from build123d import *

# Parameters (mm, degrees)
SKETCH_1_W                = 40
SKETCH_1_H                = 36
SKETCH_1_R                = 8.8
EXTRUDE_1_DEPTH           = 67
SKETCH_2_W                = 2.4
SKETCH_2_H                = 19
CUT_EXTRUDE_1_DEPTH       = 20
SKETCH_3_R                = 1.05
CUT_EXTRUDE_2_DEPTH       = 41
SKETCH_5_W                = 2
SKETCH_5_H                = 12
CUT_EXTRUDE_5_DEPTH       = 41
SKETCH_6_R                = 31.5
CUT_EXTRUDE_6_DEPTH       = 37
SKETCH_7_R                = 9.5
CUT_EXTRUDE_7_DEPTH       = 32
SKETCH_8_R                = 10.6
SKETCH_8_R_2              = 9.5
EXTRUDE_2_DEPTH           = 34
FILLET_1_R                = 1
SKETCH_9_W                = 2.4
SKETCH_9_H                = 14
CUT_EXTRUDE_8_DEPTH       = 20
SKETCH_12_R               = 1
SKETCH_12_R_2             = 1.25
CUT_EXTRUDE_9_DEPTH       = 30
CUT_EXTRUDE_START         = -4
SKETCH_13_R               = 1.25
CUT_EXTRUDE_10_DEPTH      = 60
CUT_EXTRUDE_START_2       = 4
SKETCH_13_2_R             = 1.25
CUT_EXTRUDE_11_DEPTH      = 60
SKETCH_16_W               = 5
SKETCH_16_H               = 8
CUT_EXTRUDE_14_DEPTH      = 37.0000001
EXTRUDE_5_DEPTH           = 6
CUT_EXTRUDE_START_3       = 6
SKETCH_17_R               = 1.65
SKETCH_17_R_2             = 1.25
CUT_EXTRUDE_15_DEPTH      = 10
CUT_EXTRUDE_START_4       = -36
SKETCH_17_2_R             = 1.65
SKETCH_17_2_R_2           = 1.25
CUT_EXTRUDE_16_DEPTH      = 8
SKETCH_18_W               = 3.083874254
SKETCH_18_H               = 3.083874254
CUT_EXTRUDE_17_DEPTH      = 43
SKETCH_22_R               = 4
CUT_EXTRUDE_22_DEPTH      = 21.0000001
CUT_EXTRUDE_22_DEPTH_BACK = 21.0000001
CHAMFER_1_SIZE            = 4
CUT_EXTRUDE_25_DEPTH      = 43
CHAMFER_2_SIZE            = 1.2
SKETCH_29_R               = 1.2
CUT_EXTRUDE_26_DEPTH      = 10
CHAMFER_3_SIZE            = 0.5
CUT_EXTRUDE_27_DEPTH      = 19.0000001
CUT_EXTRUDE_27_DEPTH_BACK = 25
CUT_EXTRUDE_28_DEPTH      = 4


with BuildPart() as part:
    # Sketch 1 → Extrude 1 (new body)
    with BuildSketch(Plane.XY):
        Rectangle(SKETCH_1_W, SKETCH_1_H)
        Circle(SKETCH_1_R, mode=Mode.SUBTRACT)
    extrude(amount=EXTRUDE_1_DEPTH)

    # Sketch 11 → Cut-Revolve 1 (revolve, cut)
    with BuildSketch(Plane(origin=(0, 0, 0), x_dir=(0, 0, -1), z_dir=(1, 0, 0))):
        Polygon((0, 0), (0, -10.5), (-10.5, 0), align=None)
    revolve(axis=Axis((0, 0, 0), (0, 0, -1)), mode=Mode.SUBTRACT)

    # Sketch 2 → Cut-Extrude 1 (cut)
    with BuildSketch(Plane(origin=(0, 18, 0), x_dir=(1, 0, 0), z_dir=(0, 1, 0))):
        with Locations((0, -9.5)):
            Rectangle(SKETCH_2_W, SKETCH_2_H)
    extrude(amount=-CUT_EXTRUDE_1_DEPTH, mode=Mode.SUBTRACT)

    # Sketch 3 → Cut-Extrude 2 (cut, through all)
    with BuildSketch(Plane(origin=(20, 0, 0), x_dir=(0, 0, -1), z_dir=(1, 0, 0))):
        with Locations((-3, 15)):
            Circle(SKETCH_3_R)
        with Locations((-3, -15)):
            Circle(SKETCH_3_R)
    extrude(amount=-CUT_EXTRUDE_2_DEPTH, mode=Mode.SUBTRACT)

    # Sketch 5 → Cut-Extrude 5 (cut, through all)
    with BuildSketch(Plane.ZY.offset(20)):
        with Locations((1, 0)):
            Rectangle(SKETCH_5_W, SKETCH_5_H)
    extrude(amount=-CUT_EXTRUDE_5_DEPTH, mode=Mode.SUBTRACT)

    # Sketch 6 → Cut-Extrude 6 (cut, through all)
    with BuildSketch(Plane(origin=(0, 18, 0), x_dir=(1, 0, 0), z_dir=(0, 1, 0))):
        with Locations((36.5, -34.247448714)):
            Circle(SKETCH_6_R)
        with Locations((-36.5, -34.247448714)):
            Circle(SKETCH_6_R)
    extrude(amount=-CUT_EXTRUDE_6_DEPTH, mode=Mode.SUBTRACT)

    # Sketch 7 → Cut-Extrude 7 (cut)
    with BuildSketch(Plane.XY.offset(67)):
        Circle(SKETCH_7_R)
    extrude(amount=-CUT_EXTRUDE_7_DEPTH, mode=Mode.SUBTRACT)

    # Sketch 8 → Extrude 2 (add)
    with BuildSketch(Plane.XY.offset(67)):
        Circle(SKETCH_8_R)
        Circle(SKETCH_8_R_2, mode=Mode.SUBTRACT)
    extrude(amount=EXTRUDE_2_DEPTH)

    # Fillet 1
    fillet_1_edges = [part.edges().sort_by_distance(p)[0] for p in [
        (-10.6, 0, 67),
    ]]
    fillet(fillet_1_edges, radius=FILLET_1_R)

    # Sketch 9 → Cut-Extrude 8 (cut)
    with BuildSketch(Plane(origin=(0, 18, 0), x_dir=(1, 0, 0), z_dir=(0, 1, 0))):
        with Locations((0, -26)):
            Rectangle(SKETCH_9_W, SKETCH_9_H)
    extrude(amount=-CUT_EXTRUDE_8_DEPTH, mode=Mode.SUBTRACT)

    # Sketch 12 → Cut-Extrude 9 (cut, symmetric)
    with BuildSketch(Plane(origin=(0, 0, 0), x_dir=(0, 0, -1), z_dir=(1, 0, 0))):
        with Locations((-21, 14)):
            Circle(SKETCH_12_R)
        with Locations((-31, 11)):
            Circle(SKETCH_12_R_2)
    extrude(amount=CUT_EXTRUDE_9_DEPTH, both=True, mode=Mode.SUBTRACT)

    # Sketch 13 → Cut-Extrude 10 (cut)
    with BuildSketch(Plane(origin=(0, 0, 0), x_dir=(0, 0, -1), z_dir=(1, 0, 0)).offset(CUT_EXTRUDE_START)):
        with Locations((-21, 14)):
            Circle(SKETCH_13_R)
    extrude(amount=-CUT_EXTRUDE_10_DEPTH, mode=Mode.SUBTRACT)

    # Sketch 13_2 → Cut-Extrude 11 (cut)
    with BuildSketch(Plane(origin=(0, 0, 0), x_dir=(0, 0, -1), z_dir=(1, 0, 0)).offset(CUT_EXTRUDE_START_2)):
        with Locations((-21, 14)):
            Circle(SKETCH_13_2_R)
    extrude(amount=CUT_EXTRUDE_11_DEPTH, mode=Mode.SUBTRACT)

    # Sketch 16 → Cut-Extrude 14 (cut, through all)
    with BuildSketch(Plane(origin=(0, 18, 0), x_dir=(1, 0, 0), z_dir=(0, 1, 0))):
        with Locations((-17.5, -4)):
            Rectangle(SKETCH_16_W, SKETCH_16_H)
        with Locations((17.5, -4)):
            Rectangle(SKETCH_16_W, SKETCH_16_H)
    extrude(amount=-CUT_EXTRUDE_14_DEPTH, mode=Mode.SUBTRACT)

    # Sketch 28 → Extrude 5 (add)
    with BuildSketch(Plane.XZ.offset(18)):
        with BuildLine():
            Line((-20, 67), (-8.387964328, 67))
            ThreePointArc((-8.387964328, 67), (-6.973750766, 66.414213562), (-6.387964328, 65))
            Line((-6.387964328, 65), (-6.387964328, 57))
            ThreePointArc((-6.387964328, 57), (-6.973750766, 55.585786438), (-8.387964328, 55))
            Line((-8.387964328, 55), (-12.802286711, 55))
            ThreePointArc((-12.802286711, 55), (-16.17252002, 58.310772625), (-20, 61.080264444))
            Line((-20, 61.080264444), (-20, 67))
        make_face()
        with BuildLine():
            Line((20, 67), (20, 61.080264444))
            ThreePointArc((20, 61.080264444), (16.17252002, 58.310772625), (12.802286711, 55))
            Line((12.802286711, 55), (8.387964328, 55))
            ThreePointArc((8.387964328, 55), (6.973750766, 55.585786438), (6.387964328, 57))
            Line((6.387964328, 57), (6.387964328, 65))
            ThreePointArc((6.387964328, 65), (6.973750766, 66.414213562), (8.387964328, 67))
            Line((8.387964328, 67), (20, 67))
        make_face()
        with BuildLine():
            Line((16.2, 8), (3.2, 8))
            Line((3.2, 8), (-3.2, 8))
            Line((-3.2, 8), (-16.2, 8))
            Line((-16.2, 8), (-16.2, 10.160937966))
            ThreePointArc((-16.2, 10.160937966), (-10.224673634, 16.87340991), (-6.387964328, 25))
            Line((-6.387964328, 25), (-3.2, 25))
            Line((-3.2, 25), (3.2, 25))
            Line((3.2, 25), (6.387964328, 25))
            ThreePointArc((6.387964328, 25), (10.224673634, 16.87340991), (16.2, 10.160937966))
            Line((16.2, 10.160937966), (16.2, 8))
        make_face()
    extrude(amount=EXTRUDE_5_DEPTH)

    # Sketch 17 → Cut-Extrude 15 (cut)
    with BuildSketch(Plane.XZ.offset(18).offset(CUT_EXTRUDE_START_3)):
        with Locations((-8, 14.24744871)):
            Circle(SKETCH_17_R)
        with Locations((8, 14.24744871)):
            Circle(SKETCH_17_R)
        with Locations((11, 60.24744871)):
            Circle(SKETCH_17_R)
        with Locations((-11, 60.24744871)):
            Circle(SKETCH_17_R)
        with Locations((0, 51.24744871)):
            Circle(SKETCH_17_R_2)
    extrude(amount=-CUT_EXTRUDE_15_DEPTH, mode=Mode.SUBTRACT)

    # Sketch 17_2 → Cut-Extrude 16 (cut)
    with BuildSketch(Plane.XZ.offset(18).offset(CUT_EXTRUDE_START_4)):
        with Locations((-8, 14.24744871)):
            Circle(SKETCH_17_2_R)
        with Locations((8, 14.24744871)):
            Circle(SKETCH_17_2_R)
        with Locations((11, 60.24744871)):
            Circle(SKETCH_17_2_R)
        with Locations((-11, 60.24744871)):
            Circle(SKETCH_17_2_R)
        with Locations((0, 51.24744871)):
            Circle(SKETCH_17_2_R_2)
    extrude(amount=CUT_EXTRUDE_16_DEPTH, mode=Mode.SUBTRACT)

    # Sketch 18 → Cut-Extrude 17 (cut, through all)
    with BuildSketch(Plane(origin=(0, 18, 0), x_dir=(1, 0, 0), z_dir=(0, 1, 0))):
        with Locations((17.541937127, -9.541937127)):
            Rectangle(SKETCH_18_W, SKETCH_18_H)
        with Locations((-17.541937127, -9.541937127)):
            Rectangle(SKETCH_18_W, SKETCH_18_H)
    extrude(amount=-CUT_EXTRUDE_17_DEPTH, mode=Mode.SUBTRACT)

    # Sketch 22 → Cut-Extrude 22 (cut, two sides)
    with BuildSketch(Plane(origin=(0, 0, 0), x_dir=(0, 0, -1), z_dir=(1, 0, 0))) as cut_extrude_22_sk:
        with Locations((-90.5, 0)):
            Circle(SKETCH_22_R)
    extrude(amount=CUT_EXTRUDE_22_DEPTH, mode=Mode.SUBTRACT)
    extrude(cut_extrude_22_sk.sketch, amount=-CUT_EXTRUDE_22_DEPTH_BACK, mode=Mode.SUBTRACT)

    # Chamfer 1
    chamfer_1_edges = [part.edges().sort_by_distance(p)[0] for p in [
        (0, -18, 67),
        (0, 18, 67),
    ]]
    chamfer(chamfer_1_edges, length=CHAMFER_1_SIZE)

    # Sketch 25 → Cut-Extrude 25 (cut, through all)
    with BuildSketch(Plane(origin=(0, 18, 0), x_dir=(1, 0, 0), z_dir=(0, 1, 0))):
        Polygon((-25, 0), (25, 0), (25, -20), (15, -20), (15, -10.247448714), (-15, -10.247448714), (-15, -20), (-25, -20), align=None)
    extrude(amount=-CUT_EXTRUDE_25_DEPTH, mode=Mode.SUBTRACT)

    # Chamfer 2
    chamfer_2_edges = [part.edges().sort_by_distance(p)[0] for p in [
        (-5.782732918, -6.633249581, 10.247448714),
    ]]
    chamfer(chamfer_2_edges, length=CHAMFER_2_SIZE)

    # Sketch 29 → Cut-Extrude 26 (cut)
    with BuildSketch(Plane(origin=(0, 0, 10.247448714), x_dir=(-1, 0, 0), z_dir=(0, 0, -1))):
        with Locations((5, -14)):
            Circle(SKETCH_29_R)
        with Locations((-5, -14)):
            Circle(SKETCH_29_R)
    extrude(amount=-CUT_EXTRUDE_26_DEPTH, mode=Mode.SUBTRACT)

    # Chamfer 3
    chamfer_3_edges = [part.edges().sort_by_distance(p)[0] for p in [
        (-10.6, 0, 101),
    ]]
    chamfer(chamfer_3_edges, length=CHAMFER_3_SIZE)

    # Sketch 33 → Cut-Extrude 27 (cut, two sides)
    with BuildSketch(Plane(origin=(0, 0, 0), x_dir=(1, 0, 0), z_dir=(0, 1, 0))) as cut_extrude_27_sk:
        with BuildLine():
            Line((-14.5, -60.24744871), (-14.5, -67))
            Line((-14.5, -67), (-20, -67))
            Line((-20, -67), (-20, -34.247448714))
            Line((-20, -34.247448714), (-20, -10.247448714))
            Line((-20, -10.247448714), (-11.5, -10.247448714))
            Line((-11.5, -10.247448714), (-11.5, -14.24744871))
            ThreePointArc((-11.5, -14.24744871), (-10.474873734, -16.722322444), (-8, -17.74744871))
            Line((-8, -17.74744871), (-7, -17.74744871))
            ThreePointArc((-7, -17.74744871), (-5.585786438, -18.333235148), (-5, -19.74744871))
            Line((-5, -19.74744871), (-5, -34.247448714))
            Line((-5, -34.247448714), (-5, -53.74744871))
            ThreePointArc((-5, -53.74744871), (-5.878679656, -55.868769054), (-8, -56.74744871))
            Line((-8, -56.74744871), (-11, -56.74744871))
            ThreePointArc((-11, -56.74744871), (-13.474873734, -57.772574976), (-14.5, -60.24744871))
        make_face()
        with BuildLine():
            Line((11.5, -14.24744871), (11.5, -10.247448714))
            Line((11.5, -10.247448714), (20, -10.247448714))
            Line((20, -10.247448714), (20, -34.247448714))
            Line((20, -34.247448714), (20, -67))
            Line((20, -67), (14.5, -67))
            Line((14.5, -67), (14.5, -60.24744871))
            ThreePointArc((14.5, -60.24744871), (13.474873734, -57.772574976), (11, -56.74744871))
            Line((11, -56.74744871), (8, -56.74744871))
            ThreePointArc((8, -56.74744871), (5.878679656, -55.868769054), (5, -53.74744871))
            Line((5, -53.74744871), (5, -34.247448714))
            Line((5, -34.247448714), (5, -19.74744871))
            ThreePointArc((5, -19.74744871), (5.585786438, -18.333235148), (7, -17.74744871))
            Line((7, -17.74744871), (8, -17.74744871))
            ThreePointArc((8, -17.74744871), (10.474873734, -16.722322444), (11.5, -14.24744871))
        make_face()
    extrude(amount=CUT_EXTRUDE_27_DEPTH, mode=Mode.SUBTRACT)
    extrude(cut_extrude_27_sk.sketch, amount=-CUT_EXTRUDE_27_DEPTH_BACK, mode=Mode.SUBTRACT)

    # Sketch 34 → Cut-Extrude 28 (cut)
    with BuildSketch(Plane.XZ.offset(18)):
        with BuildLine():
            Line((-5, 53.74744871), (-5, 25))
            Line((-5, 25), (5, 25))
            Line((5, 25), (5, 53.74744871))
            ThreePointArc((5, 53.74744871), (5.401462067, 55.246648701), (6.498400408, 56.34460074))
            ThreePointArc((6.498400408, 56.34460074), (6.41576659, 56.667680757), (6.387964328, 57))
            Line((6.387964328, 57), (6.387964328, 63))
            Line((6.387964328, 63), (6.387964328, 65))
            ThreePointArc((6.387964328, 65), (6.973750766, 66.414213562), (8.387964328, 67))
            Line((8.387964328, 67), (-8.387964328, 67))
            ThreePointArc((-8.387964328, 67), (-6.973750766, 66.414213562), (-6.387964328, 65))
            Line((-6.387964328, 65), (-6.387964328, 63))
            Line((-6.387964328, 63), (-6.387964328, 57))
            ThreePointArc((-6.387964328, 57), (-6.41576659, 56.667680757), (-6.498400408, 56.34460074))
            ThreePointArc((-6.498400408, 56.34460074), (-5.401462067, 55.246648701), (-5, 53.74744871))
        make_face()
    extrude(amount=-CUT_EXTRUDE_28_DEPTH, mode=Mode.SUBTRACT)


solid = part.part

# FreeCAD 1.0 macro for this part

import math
import FreeCAD as App
import Part
import Sketcher

V = App.Vector


def edges_at(feature, points):
    """Names of the edges that pass closest to the given points."""
    edges = feature.Shape.Edges
    near = lambda p: min(range(len(edges)), key=lambda i: edges[i].distToShape(Part.Vertex(*p))[0])
    return sorted({f"Edge{near(p) + 1}" for p in points})

doc = App.newDocument("Part")
body = doc.addObject("PartDesign::Body", "Body")

# Sketch on XY plane
sketch1 = body.newObject("Sketcher::SketchObject", "Sketch")
sketch1.AttachmentSupport = (doc.getObject("XY_Plane"), [""])
sketch1.MapMode = "FlatFace"
sketch1.addGeometry([
    Part.LineSegment(V(-20, 18, 0), V(-20, -18, 0)),  # 0
    Part.LineSegment(V(-20, -18, 0), V(20, -18, 0)),  # 1
    Part.LineSegment(V(20, -18, 0), V(20, 18, 0)),  # 2
    Part.LineSegment(V(20, 18, 0), V(-20, 18, 0)),  # 3
    Part.Circle(V(0, 0, 0), V(0, 0, 1), 9),  # 4
], False)
sketch1.addConstraint([
    Sketcher.Constraint("Coincident", 0, 2, 1, 1),
    Sketcher.Constraint("Coincident", 1, 2, 2, 1),
    Sketcher.Constraint("Coincident", 2, 2, 3, 1),
    Sketcher.Constraint("Coincident", 3, 2, 0, 1),
    Sketcher.Constraint("Vertical", 0),
    Sketcher.Constraint("Horizontal", 1),
    Sketcher.Constraint("Vertical", 2),
    Sketcher.Constraint("Horizontal", 3),
    Sketcher.Constraint("Coincident", 4, 3, -1, 1),
    Sketcher.Constraint("Symmetric", 0, 2, 2, 2, -1, 1),
    Sketcher.Constraint("Diameter", 4, 17.6),
    Sketcher.Constraint("DistanceX", 1, 1, 1, 2, 40.0),
    Sketcher.Constraint("DistanceY", 0, 2, 0, 1, 36.0),
])
pad1 = body.newObject("PartDesign::Pad", "Pad")
pad1.Profile = sketch1
pad1.Length = 67

# Sketch on YZ plane
sketch2 = body.newObject("Sketcher::SketchObject", "Sketch001")
sketch2.AttachmentSupport = (doc.getObject("YZ_Plane"), [""])
sketch2.MapMode = "FlatFace"
sketch2.addGeometry([
    Part.LineSegment(V(-10, 0, 0), V(0, 0, 0)),
    Part.LineSegment(V(0, 0, 0), V(0, 10, 0)),
    Part.LineSegment(V(0, 10, 0), V(-10, 0, 0)),
], False)
sketch2.addConstraint([
    Sketcher.Constraint("Coincident", 0, 2, 1, 1),
    Sketcher.Constraint("Coincident", 1, 2, 2, 1),
    Sketcher.Constraint("Coincident", 2, 2, 0, 1),
    Sketcher.Constraint("Horizontal", 0),
    Sketcher.Constraint("Vertical", 1),
    Sketcher.Constraint("Coincident", 0, 2, -1, 1),
    Sketcher.Constraint("Equal", 0, 1),
    Sketcher.Constraint("DistanceX", 0, 1, 0, 2, 10.5),
])
groove = body.newObject("PartDesign::Groove", "Groove")
groove.Profile = sketch2
groove.ReferenceAxis = (sketch2, ["V_Axis"])
groove.Angle = 360

# Sketch on XZ plane
sketch3 = body.newObject("Sketcher::SketchObject", "Sketch002")
sketch3.AttachmentSupport = (doc.getObject("XZ_Plane"), [""])
sketch3.MapMode = "FlatFace"
sketch3.AttachmentOffset = App.Placement(V(0, 0, -18), App.Rotation())
sketch3.addGeometry([
    Part.LineSegment(V(-1.2, 0, 0), V(-1.2, 19, 0)),
    Part.LineSegment(V(-1.2, 19, 0), V(1.2, 19, 0)),
    Part.LineSegment(V(1.2, 19, 0), V(1.2, 0, 0)),
    Part.LineSegment(V(1.2, 0, 0), V(-1.2, 0, 0)),
], False)
sketch3.addConstraint([
    Sketcher.Constraint("Coincident", 0, 2, 1, 1),
    Sketcher.Constraint("Coincident", 1, 2, 2, 1),
    Sketcher.Constraint("Coincident", 2, 2, 3, 1),
    Sketcher.Constraint("Coincident", 3, 2, 0, 1),
    Sketcher.Constraint("Vertical", 0),
    Sketcher.Constraint("Horizontal", 1),
    Sketcher.Constraint("Vertical", 2),
    Sketcher.Constraint("Horizontal", 3),
    Sketcher.Constraint("Symmetric", 2, 2, 3, 2, -1, 1),
    Sketcher.Constraint("DistanceY", 0, 1, 0, 2, 19.0),
    Sketcher.Constraint("DistanceX", 1, 1, 1, 2, 2.4),
])
pocket1 = body.newObject("PartDesign::Pocket", "Pocket")
pocket1.Profile = sketch3
pocket1.Length = 20
pocket1.Reversed = True

# Sketch on YZ plane
sketch4 = body.newObject("Sketcher::SketchObject", "Sketch003")
sketch4.AttachmentSupport = (doc.getObject("YZ_Plane"), [""])
sketch4.MapMode = "FlatFace"
sketch4.AttachmentOffset = App.Placement(V(0, 0, 20), App.Rotation())
sketch4.addGeometry([
    Part.Circle(V(15, 3, 0), V(0, 0, 1), 1.1),
    Part.Circle(V(-15, 3, 0), V(0, 0, 1), 1.1),
], False)
sketch4.addConstraint([
    Sketcher.Constraint("Equal", 0, 1),
    Sketcher.Constraint("Symmetric", 0, 3, 1, 3, -2),
    Sketcher.Constraint("Diameter", 0, 2.1),
    Sketcher.Constraint("DistanceX", -1, 1, 0, 3, 15.0),
    Sketcher.Constraint("DistanceY", -1, 1, 0, 3, 3.0),
])
pocket2 = body.newObject("PartDesign::Pocket", "Pocket001")
pocket2.Profile = sketch4
pocket2.Type = "ThroughAll"

# Sketch on YZ plane
sketch5 = body.newObject("Sketcher::SketchObject", "Sketch004")
sketch5.AttachmentSupport = (doc.getObject("YZ_Plane"), [""])
sketch5.MapMode = "FlatFace"
sketch5.AttachmentOffset = App.Placement(V(0, 0, -20), App.Rotation())
sketch5.addGeometry([
    Part.LineSegment(V(6, 0, 0), V(-6, 0, 0)),
    Part.LineSegment(V(-6, 0, 0), V(-6, 2, 0)),
    Part.LineSegment(V(-6, 2, 0), V(6, 2, 0)),
    Part.LineSegment(V(6, 2, 0), V(6, 0, 0)),
], False)
sketch5.addConstraint([
    Sketcher.Constraint("Coincident", 0, 2, 1, 1),
    Sketcher.Constraint("Coincident", 1, 2, 2, 1),
    Sketcher.Constraint("Coincident", 2, 2, 3, 1),
    Sketcher.Constraint("Coincident", 3, 2, 0, 1),
    Sketcher.Constraint("Horizontal", 0),
    Sketcher.Constraint("Vertical", 1),
    Sketcher.Constraint("Horizontal", 2),
    Sketcher.Constraint("Vertical", 3),
    Sketcher.Constraint("Symmetric", 0, 2, 3, 2, -1, 1),
    Sketcher.Constraint("DistanceX", 0, 2, 0, 1, 12.0),
    Sketcher.Constraint("DistanceY", 1, 1, 1, 2, 2.0),
])
pocket3 = body.newObject("PartDesign::Pocket", "Pocket002")
pocket3.Profile = sketch5
pocket3.Type = "ThroughAll"
pocket3.Reversed = True

# Sketch on XZ plane
sketch6 = body.newObject("Sketcher::SketchObject", "Sketch005")
sketch6.AttachmentSupport = (doc.getObject("XZ_Plane"), [""])
sketch6.MapMode = "FlatFace"
sketch6.AttachmentOffset = App.Placement(V(0, 0, -18), App.Rotation())
sketch6.addGeometry([
    Part.Circle(V(36, 34, 0), V(0, 0, 1), 32),
    Part.Circle(V(-36, 34, 0), V(0, 0, 1), 32),
], False)
sketch6.addConstraint([
    Sketcher.Constraint("Equal", 0, 1),
    Sketcher.Constraint("Symmetric", 0, 3, 1, 3, -2),
    Sketcher.Constraint("Diameter", 0, 63.0),
    Sketcher.Constraint("DistanceX", 1, 3, 0, 3, 73.0),
    Sketcher.Constraint("DistanceY", -1, 1, 0, 3, 34.247449),
])
pocket4 = body.newObject("PartDesign::Pocket", "Pocket003")
pocket4.Profile = sketch6
pocket4.Type = "ThroughAll"
pocket4.Reversed = True

# Sketch on XY plane
sketch7 = body.newObject("Sketcher::SketchObject", "Sketch006")
sketch7.AttachmentSupport = (doc.getObject("XY_Plane"), [""])
sketch7.MapMode = "FlatFace"
sketch7.AttachmentOffset = App.Placement(V(0, 0, 67), App.Rotation())
sketch7.addGeometry(Part.Circle(V(0, 0, 0), V(0, 0, 1), 10), False)
sketch7.addConstraint([
    Sketcher.Constraint("Coincident", 0, 3, -1, 1),
    Sketcher.Constraint("Diameter", 0, 19.0),
])
pocket5 = body.newObject("PartDesign::Pocket", "Pocket004")
pocket5.Profile = sketch7
pocket5.Length = 32

# Sketch on XY plane
sketch8 = body.newObject("Sketcher::SketchObject", "Sketch007")
sketch8.AttachmentSupport = (doc.getObject("XY_Plane"), [""])
sketch8.MapMode = "FlatFace"
sketch8.AttachmentOffset = App.Placement(V(0, 0, 67), App.Rotation())
sketch8.addGeometry([
    Part.Circle(V(0, 0, 0), V(0, 0, 1), 11),
    Part.Circle(V(0, 0, 0), V(0, 0, 1), 10),
], False)
sketch8.addConstraint([
    Sketcher.Constraint("Coincident", 0, 3, -1, 1),
    Sketcher.Constraint("Coincident", 1, 3, -1, 1),
    Sketcher.Constraint("Diameter", 1, 19.0),
    Sketcher.Constraint("Diameter", 0, 21.2),
])
pad2 = body.newObject("PartDesign::Pad", "Pad001")
pad2.Profile = sketch8
pad2.Length = 34
doc.recompute()

fillet = body.newObject("PartDesign::Fillet", "Fillet")
fillet.Base = (pad2, edges_at(pad2, [(-10.6, 0, 67)]))
fillet.Radius = 1

# Sketch on XZ plane
sketch9 = body.newObject("Sketcher::SketchObject", "Sketch008")
sketch9.AttachmentSupport = (doc.getObject("XZ_Plane"), [""])
sketch9.MapMode = "FlatFace"
sketch9.AttachmentOffset = App.Placement(V(0, 0, -18), App.Rotation())
sketch9.addGeometry([
    Part.LineSegment(V(-1.2, 19, 0), V(-1.2, 33, 0)),
    Part.LineSegment(V(-1.2, 33, 0), V(1.2, 33, 0)),
    Part.LineSegment(V(1.2, 33, 0), V(1.2, 19, 0)),
    Part.LineSegment(V(1.2, 19, 0), V(-1.2, 19, 0)),
], False)
sketch9.addConstraint([
    Sketcher.Constraint("Coincident", 0, 2, 1, 1),
    Sketcher.Constraint("Coincident", 1, 2, 2, 1),
    Sketcher.Constraint("Coincident", 2, 2, 3, 1),
    Sketcher.Constraint("Coincident", 3, 2, 0, 1),
    Sketcher.Constraint("Vertical", 0),
    Sketcher.Constraint("Horizontal", 1),
    Sketcher.Constraint("Vertical", 2),
    Sketcher.Constraint("Horizontal", 3),
    Sketcher.Constraint("DistanceY", 0, 1, 0, 2, 14.0),
    Sketcher.Constraint("DistanceX", 1, 1, 1, 2, 2.4),
    Sketcher.Constraint("DistanceY", -1, 1, 0, 2, 33.0),
    Sketcher.Constraint("DistanceX", 0, 2, -1, 1, 1.2),
])
pocket6 = body.newObject("PartDesign::Pocket", "Pocket005")
pocket6.Profile = sketch9
pocket6.Length = 20
pocket6.Reversed = True

# Sketch on YZ plane
sketch10 = body.newObject("Sketcher::SketchObject", "Sketch009")
sketch10.AttachmentSupport = (doc.getObject("YZ_Plane"), [""])
sketch10.MapMode = "FlatFace"
sketch10.addGeometry([
    Part.Circle(V(14, 21, 0), V(0, 0, 1), 1),
    Part.Circle(V(11, 31, 0), V(0, 0, 1), 1.2),
], False)
sketch10.addConstraint([
    Sketcher.Constraint("Diameter", 0, 2.0),
    Sketcher.Constraint("Diameter", 1, 2.5),
    Sketcher.Constraint("DistanceX", -1, 1, 0, 3, 14.0),
    Sketcher.Constraint("DistanceY", -1, 1, 0, 3, 21.0),
    Sketcher.Constraint("DistanceX", -1, 1, 1, 3, 11.0),
    Sketcher.Constraint("DistanceY", -1, 1, 1, 3, 31.0),
])
pocket7 = body.newObject("PartDesign::Pocket", "Pocket006")
pocket7.Profile = sketch10
pocket7.Length = 60
pocket7.Midplane = True

# Sketch on YZ plane
sketch11 = body.newObject("Sketcher::SketchObject", "Sketch010")
sketch11.AttachmentSupport = (doc.getObject("YZ_Plane"), [""])
sketch11.MapMode = "FlatFace"
sketch11.AttachmentOffset = App.Placement(V(0, 0, -4), App.Rotation())
sketch11.addGeometry(Part.Circle(V(14, 21, 0), V(0, 0, 1), 1.2), False)
sketch11.addConstraint([
    Sketcher.Constraint("Diameter", 0, 2.5),
    Sketcher.Constraint("DistanceX", -1, 1, 0, 3, 14.0),
    Sketcher.Constraint("DistanceY", -1, 1, 0, 3, 21.0),
])
pocket8 = body.newObject("PartDesign::Pocket", "Pocket007")
pocket8.Profile = sketch11
pocket8.Length = 60

# Sketch on YZ plane
sketch12 = body.newObject("Sketcher::SketchObject", "Sketch011")
sketch12.AttachmentSupport = (doc.getObject("YZ_Plane"), [""])
sketch12.MapMode = "FlatFace"
sketch12.AttachmentOffset = App.Placement(V(0, 0, 4), App.Rotation())
sketch12.addGeometry(Part.Circle(V(14, 21, 0), V(0, 0, 1), 1.2), False)
sketch12.addConstraint([
    Sketcher.Constraint("Diameter", 0, 2.5),
    Sketcher.Constraint("DistanceX", -1, 1, 0, 3, 14.0),
    Sketcher.Constraint("DistanceY", -1, 1, 0, 3, 21.0),
])
pocket9 = body.newObject("PartDesign::Pocket", "Pocket008")
pocket9.Profile = sketch12
pocket9.Length = 60
pocket9.Reversed = True

# Sketch on XZ plane
sketch13 = body.newObject("Sketcher::SketchObject", "Sketch012")
sketch13.AttachmentSupport = (doc.getObject("XZ_Plane"), [""])
sketch13.MapMode = "FlatFace"
sketch13.AttachmentOffset = App.Placement(V(0, 0, -18), App.Rotation())
sketch13.addGeometry([
    Part.LineSegment(V(-20, 0, 0), V(-20, 8, 0)),  # 0
    Part.LineSegment(V(-20, 8, 0), V(-15, 8, 0)),  # 1
    Part.LineSegment(V(-15, 8, 0), V(-15, 0, 0)),  # 2
    Part.LineSegment(V(-15, 0, 0), V(-20, 0, 0)),  # 3
    Part.LineSegment(V(15, 0, 0), V(15, 8, 0)),  # 4
    Part.LineSegment(V(15, 8, 0), V(20, 8, 0)),  # 5
    Part.LineSegment(V(20, 8, 0), V(20, 0, 0)),  # 6
    Part.LineSegment(V(20, 0, 0), V(15, 0, 0)),  # 7
], False)
sketch13.addConstraint([
    Sketcher.Constraint("Coincident", 0, 2, 1, 1),
    Sketcher.Constraint("Coincident", 1, 2, 2, 1),
    Sketcher.Constraint("Coincident", 2, 2, 3, 1),
    Sketcher.Constraint("Coincident", 3, 2, 0, 1),
    Sketcher.Constraint("Coincident", 4, 2, 5, 1),
    Sketcher.Constraint("Coincident", 5, 2, 6, 1),
    Sketcher.Constraint("Coincident", 6, 2, 7, 1),
    Sketcher.Constraint("Coincident", 7, 2, 4, 1),
    Sketcher.Constraint("Vertical", 0),
    Sketcher.Constraint("Horizontal", 1),
    Sketcher.Constraint("Vertical", 2),
    Sketcher.Constraint("Horizontal", 3),
    Sketcher.Constraint("Vertical", 4),
    Sketcher.Constraint("Horizontal", 5),
    Sketcher.Constraint("Vertical", 6),
    Sketcher.Constraint("Horizontal", 7),
    Sketcher.Constraint("Symmetric", 3, 2, 6, 2, -1, 1),
    Sketcher.Constraint("Symmetric", 1, 2, 4, 2, -2),
    Sketcher.Constraint("PointOnObject", 2, 2, -1),
    Sketcher.Constraint("DistanceX", 1, 1, 1, 2, 5.0),
    Sketcher.Constraint("DistanceY", 0, 1, 0, 2, 8.0),
    Sketcher.Constraint("DistanceX", 0, 2, -1, 1, 20.0),
])
pocket10 = body.newObject("PartDesign::Pocket", "Pocket009")
pocket10.Profile = sketch13
pocket10.Type = "ThroughAll"
pocket10.Reversed = True

# Sketch on XZ plane
sketch14 = body.newObject("Sketcher::SketchObject", "Sketch013")
sketch14.AttachmentSupport = (doc.getObject("XZ_Plane"), [""])
sketch14.MapMode = "FlatFace"
sketch14.AttachmentOffset = App.Placement(V(0, 0, 18), App.Rotation())
sketch14.addGeometry([
    Part.LineSegment(V(-8.4, 67, 0), V(-20, 67, 0)),  # 0
    Part.LineSegment(V(-20, 67, 0), V(-20, 61.1, 0)),  # 1
    Part.ArcOfCircle(Part.Circle(V(-36.5, 34.2, 0), V(0, 0, 1), 31.5), math.radians(41.21), math.radians(58.41)),  # 2
    Part.LineSegment(V(-12.8, 55, 0), V(-8.4, 55, 0)),  # 3
    Part.ArcOfCircle(Part.Circle(V(-8.4, 57, 0), V(0, 0, 1), 2), math.radians(-90), math.radians(0)),  # 4
    Part.LineSegment(V(-6.4, 57, 0), V(-6.4, 65, 0)),  # 5
    Part.ArcOfCircle(Part.Circle(V(-8.4, 65, 0), V(0, 0, 1), 2), math.radians(0), math.radians(90)),  # 6
    Part.LineSegment(V(20, 61.1, 0), V(20, 67, 0)),  # 7
    Part.LineSegment(V(20, 67, 0), V(8.4, 67, 0)),  # 8
    Part.ArcOfCircle(Part.Circle(V(8.4, 65, 0), V(0, 0, 1), 2), math.radians(90), math.radians(180)),  # 9
    Part.LineSegment(V(6.4, 65, 0), V(6.4, 57, 0)),  # 10
    Part.ArcOfCircle(Part.Circle(V(8.4, 57, 0), V(0, 0, 1), 2), math.radians(-180), math.radians(-90)),  # 11
    Part.LineSegment(V(8.4, 55, 0), V(12.8, 55, 0)),  # 12
    Part.ArcOfCircle(Part.Circle(V(36.5, 34.2, 0), V(0, 0, 1), 31.5), math.radians(121.59), math.radians(138.79)),  # 13
    Part.LineSegment(V(-16.2, 8, 0), V(16.2, 8, 0)),  # 14
    Part.LineSegment(V(16.2, 8, 0), V(16.2, 10.2, 0)),  # 15
    Part.ArcOfCircle(Part.Circle(V(36.5, 34.2, 0), V(0, 0, 1), 31.5), math.radians(-163), math.radians(-130)),  # 16
    Part.LineSegment(V(6.4, 25, 0), V(-6.4, 25, 0)),  # 17
    Part.ArcOfCircle(Part.Circle(V(-36.5, 34.2, 0), V(0, 0, 1), 31.5), math.radians(-50), math.radians(-17)),  # 18
    Part.LineSegment(V(-16.2, 10.2, 0), V(-16.2, 8, 0)),  # 19
], False)
sketch14.addConstraint([
    Sketcher.Constraint("Coincident", 0, 2, 1, 1),
    Sketcher.Constraint("Coincident", 1, 2, 2, 2),
    Sketcher.Constraint("Coincident", 2, 1, 3, 1),
    Sketcher.Constraint("Tangent", 3, 2, 4, 1),
    Sketcher.Constraint("Tangent", 4, 2, 5, 1),
    Sketcher.Constraint("Tangent", 5, 2, 6, 1),
    Sketcher.Constraint("Tangent", 6, 2, 0, 1),
    Sketcher.Constraint("Coincident", 7, 2, 8, 1),
    Sketcher.Constraint("Tangent", 8, 2, 9, 1),
    Sketcher.Constraint("Tangent", 9, 2, 10, 1),
    Sketcher.Constraint("Tangent", 10, 2, 11, 1),
    Sketcher.Constraint("Tangent", 11, 2, 12, 1),
    Sketcher.Constraint("Coincident", 12, 2, 13, 2),
    Sketcher.Constraint("Coincident", 13, 1, 7, 1),
    Sketcher.Constraint("Coincident", 14, 2, 15, 1),
    Sketcher.Constraint("Coincident", 15, 2, 16, 2),
    Sketcher.Constraint("Coincident", 16, 1, 17, 1),
    Sketcher.Constraint("Coincident", 17, 2, 18, 2),
    Sketcher.Constraint("Coincident", 18, 1, 19, 1),
    Sketcher.Constraint("Coincident", 19, 2, 14, 1),
    Sketcher.Constraint("Horizontal", 0),
    Sketcher.Constraint("Vertical", 1),
    Sketcher.Constraint("Horizontal", 3),
    Sketcher.Constraint("Vertical", 5),
    Sketcher.Constraint("Vertical", 7),
    Sketcher.Constraint("Horizontal", 8),
    Sketcher.Constraint("Vertical", 10),
    Sketcher.Constraint("Horizontal", 12),
    Sketcher.Constraint("Horizontal", 14),
    Sketcher.Constraint("Vertical", 15),
    Sketcher.Constraint("Horizontal", 17),
    Sketcher.Constraint("Vertical", 19),
    Sketcher.Constraint("Coincident", 16, 3, 13, 3),
    Sketcher.Constraint("Coincident", 18, 3, 2, 3),
    Sketcher.Constraint("Equal", 4, 6),
    Sketcher.Constraint("Equal", 6, 9),
    Sketcher.Constraint("Equal", 9, 11),
    Sketcher.Constraint("Equal", 2, 13),
    Sketcher.Constraint("Equal", 13, 16),
    Sketcher.Constraint("Equal", 16, 18),
    Sketcher.Constraint("Symmetric", 6, 3, 9, 3, -2),
    Sketcher.Constraint("Symmetric", 2, 3, 13, 3, -2),
    Sketcher.Constraint("Horizontal", 4, 3, 11, 3),
    Sketcher.Constraint("Horizontal", 1, 2, 13, 1),
    Sketcher.Constraint("Horizontal", 15, 2, 18, 1),
    Sketcher.Constraint("Vertical", 10, 2, 16, 1),
    Sketcher.Constraint("Radius", 4, 2.0),
    Sketcher.Constraint("Radius", 2, 31.5),
    Sketcher.Constraint("DistanceY", 5, 1, 5, 2, 8.0),
    Sketcher.Constraint("DistanceX", 14, 1, 14, 2, 32.4),
    Sketcher.Constraint("DistanceY", -1, 1, 4, 3, 57.0),
    Sketcher.Constraint("DistanceX", 0, 2, -1, 1, 20.0),
    Sketcher.Constraint("DistanceY", -1, 1, 14, 2, 8.0),
    Sketcher.Constraint("DistanceY", -1, 1, 16, 1, 25.0),
    Sketcher.Constraint("DistanceX", 2, 3, 13, 3, 73.0),
    Sketcher.Constraint("DistanceX", 17, 2, 17, 1, 12.775929),
])
pad3 = body.newObject("PartDesign::Pad", "Pad002")
pad3.Profile = sketch14
pad3.Length = 6

# Sketch on XZ plane
sketch15 = body.newObject("Sketcher::SketchObject", "Sketch014")
sketch15.AttachmentSupport = (doc.getObject("XZ_Plane"), [""])
sketch15.MapMode = "FlatFace"
sketch15.AttachmentOffset = App.Placement(V(0, 0, 24), App.Rotation())
sketch15.addGeometry([
    Part.Circle(V(-8, 14.2, 0), V(0, 0, 1), 1.6),  # 0
    Part.Circle(V(8, 14.2, 0), V(0, 0, 1), 1.6),  # 1
    Part.Circle(V(11, 60.2, 0), V(0, 0, 1), 1.6),  # 2
    Part.Circle(V(-11, 60.2, 0), V(0, 0, 1), 1.6),  # 3
    Part.Circle(V(0, 51.2, 0), V(0, 0, 1), 1.2),  # 4
], False)
sketch15.addConstraint([
    Sketcher.Constraint("Equal", 0, 1),
    Sketcher.Constraint("Equal", 1, 2),
    Sketcher.Constraint("Equal", 2, 3),
    Sketcher.Constraint("Symmetric", 0, 3, 1, 3, -2),
    Sketcher.Constraint("Symmetric", 2, 3, 3, 3, -2),
    Sketcher.Constraint("PointOnObject", 4, 3, -2),
    Sketcher.Constraint("Diameter", 0, 3.3),
    Sketcher.Constraint("Diameter", 4, 2.5),
    Sketcher.Constraint("DistanceX", 0, 3, -1, 1, 8.0),
    Sketcher.Constraint("DistanceX", -1, 1, 2, 3, 11.0),
    Sketcher.Constraint("DistanceY", 1, 3, 2, 3, 46.0),
    Sketcher.Constraint("DistanceY", 4, 3, 2, 3, 9.0),
    Sketcher.Constraint("DistanceY", -1, 1, 0, 3, 14.247449),
])
pocket11 = body.newObject("PartDesign::Pocket", "Pocket010")
pocket11.Profile = sketch15
pocket11.Length = 10

# Sketch on XZ plane
sketch16 = body.newObject("Sketcher::SketchObject", "Sketch015")
sketch16.AttachmentSupport = (doc.getObject("XZ_Plane"), [""])
sketch16.MapMode = "FlatFace"
sketch16.AttachmentOffset = App.Placement(V(0, 0, -18), App.Rotation())
sketch16.addGeometry([
    Part.Circle(V(-8, 14.2, 0), V(0, 0, 1), 1.6),  # 0
    Part.Circle(V(8, 14.2, 0), V(0, 0, 1), 1.6),  # 1
    Part.Circle(V(11, 60.2, 0), V(0, 0, 1), 1.6),  # 2
    Part.Circle(V(-11, 60.2, 0), V(0, 0, 1), 1.6),  # 3
    Part.Circle(V(0, 51.2, 0), V(0, 0, 1), 1.2),  # 4
], False)
sketch16.addConstraint([
    Sketcher.Constraint("Equal", 0, 1),
    Sketcher.Constraint("Equal", 1, 2),
    Sketcher.Constraint("Equal", 2, 3),
    Sketcher.Constraint("Symmetric", 0, 3, 1, 3, -2),
    Sketcher.Constraint("Symmetric", 2, 3, 3, 3, -2),
    Sketcher.Constraint("PointOnObject", 4, 3, -2),
    Sketcher.Constraint("Diameter", 0, 3.3),
    Sketcher.Constraint("Diameter", 4, 2.5),
    Sketcher.Constraint("DistanceX", 0, 3, -1, 1, 8.0),
    Sketcher.Constraint("DistanceX", -1, 1, 2, 3, 11.0),
    Sketcher.Constraint("DistanceY", 1, 3, 2, 3, 46.0),
    Sketcher.Constraint("DistanceY", 4, 3, 2, 3, 9.0),
    Sketcher.Constraint("DistanceY", -1, 1, 0, 3, 14.247449),
])
pocket12 = body.newObject("PartDesign::Pocket", "Pocket011")
pocket12.Profile = sketch16
pocket12.Length = 8
pocket12.Reversed = True

# Sketch on XZ plane
sketch17 = body.newObject("Sketcher::SketchObject", "Sketch016")
sketch17.AttachmentSupport = (doc.getObject("XZ_Plane"), [""])
sketch17.MapMode = "FlatFace"
sketch17.AttachmentOffset = App.Placement(V(0, 0, -18), App.Rotation())
sketch17.addGeometry([
    Part.LineSegment(V(16, 8, 0), V(16, 11.1, 0)),  # 0
    Part.LineSegment(V(16, 11.1, 0), V(19.1, 11.1, 0)),  # 1
    Part.LineSegment(V(19.1, 11.1, 0), V(19.1, 8, 0)),  # 2
    Part.LineSegment(V(19.1, 8, 0), V(16, 8, 0)),  # 3
    Part.LineSegment(V(-19.1, 8, 0), V(-19.1, 11.1, 0)),  # 4
    Part.LineSegment(V(-19.1, 11.1, 0), V(-16, 11.1, 0)),  # 5
    Part.LineSegment(V(-16, 11.1, 0), V(-16, 8, 0)),  # 6
    Part.LineSegment(V(-16, 8, 0), V(-19.1, 8, 0)),  # 7
], False)
sketch17.addConstraint([
    Sketcher.Constraint("Coincident", 0, 2, 1, 1),
    Sketcher.Constraint("Coincident", 1, 2, 2, 1),
    Sketcher.Constraint("Coincident", 2, 2, 3, 1),
    Sketcher.Constraint("Coincident", 3, 2, 0, 1),
    Sketcher.Constraint("Coincident", 4, 2, 5, 1),
    Sketcher.Constraint("Coincident", 5, 2, 6, 1),
    Sketcher.Constraint("Coincident", 6, 2, 7, 1),
    Sketcher.Constraint("Coincident", 7, 2, 4, 1),
    Sketcher.Constraint("Vertical", 0),
    Sketcher.Constraint("Horizontal", 1),
    Sketcher.Constraint("Vertical", 2),
    Sketcher.Constraint("Horizontal", 3),
    Sketcher.Constraint("Vertical", 4),
    Sketcher.Constraint("Horizontal", 5),
    Sketcher.Constraint("Vertical", 6),
    Sketcher.Constraint("Horizontal", 7),
    Sketcher.Constraint("Symmetric", 1, 2, 4, 2, -2),
    Sketcher.Constraint("Symmetric", 3, 2, 6, 2, -2),
    Sketcher.Constraint("Equal", 7, 0),
    Sketcher.Constraint("DistanceX", -1, 1, 0, 2, 16.0),
    Sketcher.Constraint("DistanceY", -1, 1, 2, 2, 8.0),
    Sketcher.Constraint("DistanceX", 1, 1, 1, 2, 3.083874),
])
pocket13 = body.newObject("PartDesign::Pocket", "Pocket012")
pocket13.Profile = sketch17
pocket13.Type = "ThroughAll"
pocket13.Reversed = True

# Sketch on YZ plane
sketch18 = body.newObject("Sketcher::SketchObject", "Sketch017")
sketch18.AttachmentSupport = (doc.getObject("YZ_Plane"), [""])
sketch18.MapMode = "FlatFace"
sketch18.addGeometry(Part.Circle(V(0, 90.5, 0), V(0, 0, 1), 4), False)
sketch18.addConstraint([
    Sketcher.Constraint("PointOnObject", 0, 3, -2),
    Sketcher.Constraint("Diameter", 0, 8.0),
    Sketcher.Constraint("DistanceY", -1, 1, 0, 3, 90.5),
])
pocket14 = body.newObject("PartDesign::Pocket", "Pocket013")
pocket14.Profile = sketch18
pocket14.Type = "ThroughAll"
pocket14.Midplane = True
doc.recompute()

chamfer = body.newObject("PartDesign::Chamfer", "Chamfer")
chamfer.Base = (pocket14, edges_at(pocket14, [(0, -18, 67), (0, 18, 67)]))
chamfer.Size = 4

# Sketch on XZ plane
sketch19 = body.newObject("Sketcher::SketchObject", "Sketch018")
sketch19.AttachmentSupport = (doc.getObject("XZ_Plane"), [""])
sketch19.MapMode = "FlatFace"
sketch19.AttachmentOffset = App.Placement(V(0, 0, -18), App.Rotation())
sketch19.addGeometry([
    Part.LineSegment(V(25, 0, 0), V(-25, 0, 0)),  # 0
    Part.LineSegment(V(-25, 0, 0), V(-25, 20, 0)),  # 1
    Part.LineSegment(V(-25, 20, 0), V(-15, 20, 0)),  # 2
    Part.LineSegment(V(-15, 20, 0), V(-15, 10, 0)),  # 3
    Part.LineSegment(V(-15, 10, 0), V(15, 10, 0)),  # 4
    Part.LineSegment(V(15, 10, 0), V(15, 20, 0)),  # 5
    Part.LineSegment(V(15, 20, 0), V(25, 20, 0)),  # 6
    Part.LineSegment(V(25, 20, 0), V(25, 0, 0)),  # 7
], False)
sketch19.addConstraint([
    Sketcher.Constraint("Coincident", 0, 2, 1, 1),
    Sketcher.Constraint("Coincident", 1, 2, 2, 1),
    Sketcher.Constraint("Coincident", 2, 2, 3, 1),
    Sketcher.Constraint("Coincident", 3, 2, 4, 1),
    Sketcher.Constraint("Coincident", 4, 2, 5, 1),
    Sketcher.Constraint("Coincident", 5, 2, 6, 1),
    Sketcher.Constraint("Coincident", 6, 2, 7, 1),
    Sketcher.Constraint("Coincident", 7, 2, 0, 1),
    Sketcher.Constraint("Horizontal", 0),
    Sketcher.Constraint("Vertical", 1),
    Sketcher.Constraint("Horizontal", 2),
    Sketcher.Constraint("Vertical", 3),
    Sketcher.Constraint("Horizontal", 4),
    Sketcher.Constraint("Vertical", 5),
    Sketcher.Constraint("Horizontal", 6),
    Sketcher.Constraint("Vertical", 7),
    Sketcher.Constraint("Symmetric", 0, 2, 7, 2, -1, 1),
    Sketcher.Constraint("Symmetric", 2, 2, 5, 2, -2),
    Sketcher.Constraint("DistanceX", 0, 2, 0, 1, 50.0),
    Sketcher.Constraint("DistanceX", 2, 1, 2, 2, 10.0),
    Sketcher.Constraint("DistanceY", 1, 1, 1, 2, 20.0),
    Sketcher.Constraint("DistanceY", 3, 2, 3, 1, 9.752551),
])
pocket15 = body.newObject("PartDesign::Pocket", "Pocket014")
pocket15.Profile = sketch19
pocket15.Type = "ThroughAll"
pocket15.Reversed = True
doc.recompute()

chamfer2 = body.newObject("PartDesign::Chamfer", "Chamfer001")
chamfer2.Base = (pocket15, edges_at(pocket15, [(-5.783, -6.633, 10.247)]))
chamfer2.Size = 1.2

# Sketch on XY plane
sketch20 = body.newObject("Sketcher::SketchObject", "Sketch019")
sketch20.AttachmentSupport = (doc.getObject("XY_Plane"), [""])
sketch20.MapMode = "FlatFace"
sketch20.AttachmentOffset = App.Placement(V(0, 0, 10.247449), App.Rotation())
sketch20.addGeometry([
    Part.Circle(V(-5, -14, 0), V(0, 0, 1), 1.2),
    Part.Circle(V(5, -14, 0), V(0, 0, 1), 1.2),
], False)
sketch20.addConstraint([
    Sketcher.Constraint("Equal", 0, 1),
    Sketcher.Constraint("Symmetric", 0, 3, 1, 3, -2),
    Sketcher.Constraint("Diameter", 0, 2.4),
    Sketcher.Constraint("DistanceX", 0, 3, -1, 1, 5.0),
    Sketcher.Constraint("DistanceY", 0, 3, -1, 1, 14.0),
])
pocket16 = body.newObject("PartDesign::Pocket", "Pocket015")
pocket16.Profile = sketch20
pocket16.Length = 10
pocket16.Reversed = True
doc.recompute()

chamfer3 = body.newObject("PartDesign::Chamfer", "Chamfer002")
chamfer3.Base = (pocket16, edges_at(pocket16, [(-10.6, 0, 101)]))
chamfer3.Size = 0.5

# Sketch on XZ plane
sketch21 = body.newObject("Sketcher::SketchObject", "Sketch020")
sketch21.AttachmentSupport = (doc.getObject("XZ_Plane"), [""])
sketch21.MapMode = "FlatFace"
sketch21.addGeometry([
    Part.LineSegment(V(-14.5, 67, 0), V(-14.5, 60.2, 0)),  # 0
    Part.ArcOfCircle(Part.Circle(V(-11, 60.2, 0), V(0, 0, 1), 3.5), math.radians(-180), math.radians(-90)),  # 1
    Part.LineSegment(V(-11, 56.7, 0), V(-8, 56.7, 0)),  # 2
    Part.ArcOfCircle(Part.Circle(V(-8, 53.7, 0), V(0, 0, 1), 3), math.radians(0), math.radians(90)),  # 3
    Part.LineSegment(V(-5, 53.7, 0), V(-5, 19.7, 0)),  # 4
    Part.ArcOfCircle(Part.Circle(V(-7, 19.7, 0), V(0, 0, 1), 2), math.radians(-90), math.radians(0)),  # 5
    Part.LineSegment(V(-7, 17.7, 0), V(-8, 17.7, 0)),  # 6
    Part.ArcOfCircle(Part.Circle(V(-8, 14.2, 0), V(0, 0, 1), 3.5), math.radians(90), math.radians(180)),  # 7
    Part.LineSegment(V(-11.5, 14.2, 0), V(-11.5, 10.2, 0)),  # 8
    Part.LineSegment(V(-11.5, 10.2, 0), V(-20, 10.2, 0)),  # 9
    Part.LineSegment(V(-20, 10.2, 0), V(-20, 67, 0)),  # 10
    Part.LineSegment(V(-20, 67, 0), V(-14.5, 67, 0)),  # 11
    Part.LineSegment(V(11.5, 10.2, 0), V(11.5, 14.2, 0)),  # 12
    Part.ArcOfCircle(Part.Circle(V(8, 14.2, 0), V(0, 0, 1), 3.5), math.radians(0), math.radians(90)),  # 13
    Part.LineSegment(V(8, 17.7, 0), V(7, 17.7, 0)),  # 14
    Part.ArcOfCircle(Part.Circle(V(7, 19.7, 0), V(0, 0, 1), 2), math.radians(-180), math.radians(-90)),  # 15
    Part.LineSegment(V(5, 19.7, 0), V(5, 53.7, 0)),  # 16
    Part.ArcOfCircle(Part.Circle(V(8, 53.7, 0), V(0, 0, 1), 3), math.radians(90), math.radians(180)),  # 17
    Part.LineSegment(V(8, 56.7, 0), V(11, 56.7, 0)),  # 18
    Part.ArcOfCircle(Part.Circle(V(11, 60.2, 0), V(0, 0, 1), 3.5), math.radians(-90), math.radians(0)),  # 19
    Part.LineSegment(V(14.5, 60.2, 0), V(14.5, 67, 0)),  # 20
    Part.LineSegment(V(14.5, 67, 0), V(20, 67, 0)),  # 21
    Part.LineSegment(V(20, 67, 0), V(20, 10.2, 0)),  # 22
    Part.LineSegment(V(20, 10.2, 0), V(11.5, 10.2, 0)),  # 23
], False)
sketch21.addConstraint([
    Sketcher.Constraint("Tangent", 0, 2, 1, 1),
    Sketcher.Constraint("Tangent", 1, 2, 2, 1),
    Sketcher.Constraint("Tangent", 2, 2, 3, 2),
    Sketcher.Constraint("Tangent", 3, 1, 4, 1),
    Sketcher.Constraint("Tangent", 4, 2, 5, 2),
    Sketcher.Constraint("Tangent", 5, 1, 6, 1),
    Sketcher.Constraint("Tangent", 6, 2, 7, 1),
    Sketcher.Constraint("Tangent", 7, 2, 8, 1),
    Sketcher.Constraint("Coincident", 8, 2, 9, 1),
    Sketcher.Constraint("Coincident", 9, 2, 10, 1),
    Sketcher.Constraint("Coincident", 10, 2, 11, 1),
    Sketcher.Constraint("Coincident", 11, 2, 0, 1),
    Sketcher.Constraint("Tangent", 12, 2, 13, 1),
    Sketcher.Constraint("Tangent", 13, 2, 14, 1),
    Sketcher.Constraint("Tangent", 14, 2, 15, 2),
    Sketcher.Constraint("Tangent", 15, 1, 16, 1),
    Sketcher.Constraint("Tangent", 16, 2, 17, 2),
    Sketcher.Constraint("Tangent", 17, 1, 18, 1),
    Sketcher.Constraint("Tangent", 18, 2, 19, 1),
    Sketcher.Constraint("Tangent", 19, 2, 20, 1),
    Sketcher.Constraint("Coincident", 20, 2, 21, 1),
    Sketcher.Constraint("Coincident", 21, 2, 22, 1),
    Sketcher.Constraint("Coincident", 22, 2, 23, 1),
    Sketcher.Constraint("Coincident", 23, 2, 12, 1),
    Sketcher.Constraint("Vertical", 0),
    Sketcher.Constraint("Horizontal", 2),
    Sketcher.Constraint("Vertical", 4),
    Sketcher.Constraint("Horizontal", 6),
    Sketcher.Constraint("Vertical", 8),
    Sketcher.Constraint("Horizontal", 9),
    Sketcher.Constraint("Vertical", 10),
    Sketcher.Constraint("Horizontal", 11),
    Sketcher.Constraint("Vertical", 12),
    Sketcher.Constraint("Horizontal", 14),
    Sketcher.Constraint("Vertical", 16),
    Sketcher.Constraint("Horizontal", 18),
    Sketcher.Constraint("Vertical", 20),
    Sketcher.Constraint("Horizontal", 21),
    Sketcher.Constraint("Vertical", 22),
    Sketcher.Constraint("Horizontal", 23),
    Sketcher.Constraint("Equal", 1, 7),
    Sketcher.Constraint("Equal", 7, 13),
    Sketcher.Constraint("Equal", 5, 15),
    Sketcher.Constraint("Equal", 3, 17),
    Sketcher.Constraint("Equal", 13, 19),
    Sketcher.Constraint("Symmetric", 7, 3, 13, 3, -2),
    Sketcher.Constraint("Symmetric", 3, 3, 17, 3, -2),
    Sketcher.Constraint("Symmetric", 11, 2, 20, 2, -2),
    Sketcher.Constraint("Symmetric", 9, 2, 22, 2, -2),
    Sketcher.Constraint("Vertical", 3, 3, 7, 3),
    Sketcher.Constraint("Radius", 3, 3.0),
    Sketcher.Constraint("Radius", 5, 2.0),
    Sketcher.Constraint("Radius", 1, 3.5),
    Sketcher.Constraint("DistanceX", 2, 1, 2, 2, 3.0),
    Sketcher.Constraint("DistanceY", 4, 2, 4, 1, 34.0),
    Sketcher.Constraint("DistanceY", 8, 2, 8, 1, 4.0),
    Sketcher.Constraint("DistanceX", 9, 2, 9, 1, 8.5),
    Sketcher.Constraint("DistanceX", 1, 3, -1, 1, 11.0),
    Sketcher.Constraint("DistanceY", -1, 1, 10, 2, 67.0),
    Sketcher.Constraint("DistanceY", 0, 2, 0, 1, 6.752551),
])
pocket17 = body.newObject("PartDesign::Pocket", "Pocket016")
pocket17.Profile = sketch21
pocket17.Type = "ThroughAll"
pocket17.Midplane = True

# Sketch on XZ plane
sketch22 = body.newObject("Sketcher::SketchObject", "Sketch021")
sketch22.AttachmentSupport = (doc.getObject("XZ_Plane"), [""])
sketch22.MapMode = "FlatFace"
sketch22.AttachmentOffset = App.Placement(V(0, 0, 18), App.Rotation())
sketch22.addGeometry([
    Part.LineSegment(V(-5, 53.7, 0), V(-5, 25, 0)),  # 0
    Part.LineSegment(V(-5, 25, 0), V(5, 25, 0)),  # 1
    Part.LineSegment(V(5, 25, 0), V(5, 53.7, 0)),  # 2
    Part.ArcOfCircle(Part.Circle(V(8, 53.7, 0), V(0, 0, 1), 3), math.radians(120), math.radians(180)),  # 3
    Part.ArcOfCircle(Part.Circle(V(8.4, 57, 0), V(0, 0, 1), 2), math.radians(-180), math.radians(-160.87)),  # 4
    Part.LineSegment(V(6.4, 57, 0), V(6.4, 65, 0)),  # 5
    Part.ArcOfCircle(Part.Circle(V(8.4, 65, 0), V(0, 0, 1), 2), math.radians(90), math.radians(180)),  # 6
    Part.LineSegment(V(8.4, 67, 0), V(-8.4, 67, 0)),  # 7
    Part.ArcOfCircle(Part.Circle(V(-8.4, 65, 0), V(0, 0, 1), 2), math.radians(0), math.radians(90)),  # 8
    Part.LineSegment(V(-6.4, 65, 0), V(-6.4, 57, 0)),  # 9
    Part.ArcOfCircle(Part.Circle(V(-8.4, 57, 0), V(0, 0, 1), 2), math.radians(-19.13), math.radians(0)),  # 10
    Part.ArcOfCircle(Part.Circle(V(-8, 53.7, 0), V(0, 0, 1), 3), math.radians(0), math.radians(60)),  # 11
], False)
sketch22.addConstraint([
    Sketcher.Constraint("Coincident", 0, 2, 1, 1),
    Sketcher.Constraint("Coincident", 1, 2, 2, 1),
    Sketcher.Constraint("Tangent", 2, 2, 3, 2),
    Sketcher.Constraint("Coincident", 3, 1, 4, 2),
    Sketcher.Constraint("Tangent", 4, 1, 5, 1),
    Sketcher.Constraint("Tangent", 5, 2, 6, 2),
    Sketcher.Constraint("Tangent", 6, 1, 7, 1),
    Sketcher.Constraint("Tangent", 7, 2, 8, 2),
    Sketcher.Constraint("Tangent", 8, 1, 9, 1),
    Sketcher.Constraint("Tangent", 9, 2, 10, 2),
    Sketcher.Constraint("Coincident", 10, 1, 11, 2),
    Sketcher.Constraint("Tangent", 11, 1, 0, 1),
    Sketcher.Constraint("Vertical", 0),
    Sketcher.Constraint("Horizontal", 1),
    Sketcher.Constraint("Vertical", 2),
    Sketcher.Constraint("Vertical", 5),
    Sketcher.Constraint("Horizontal", 7),
    Sketcher.Constraint("Vertical", 9),
    Sketcher.Constraint("Equal", 4, 6),
    Sketcher.Constraint("Equal", 6, 8),
    Sketcher.Constraint("Equal", 8, 10),
    Sketcher.Constraint("Equal", 3, 11),
    Sketcher.Constraint("Symmetric", 4, 3, 10, 3, -2),
    Sketcher.Constraint("Symmetric", 3, 3, 11, 3, -2),
    Sketcher.Constraint("Radius", 3, 3.0),
    Sketcher.Constraint("Radius", 4, 2.0),
    Sketcher.Constraint("DistanceX", 1, 1, 1, 2, 10.0),
    Sketcher.Constraint("DistanceY", 5, 1, 5, 2, 8.0),
    Sketcher.Constraint("DistanceY", -1, 1, 4, 3, 57.0),
    Sketcher.Constraint("DistanceY", -1, 1, 0, 2, 25.0),
    Sketcher.Constraint("DistanceX", 7, 2, 7, 1, 16.775929),
    Sketcher.Constraint("DistanceY", 0, 2, 0, 1, 28.747449),
])
pocket18 = body.newObject("PartDesign::Pocket", "Pocket017")
pocket18.Profile = sketch22
pocket18.Length = 4

doc.recompute()
